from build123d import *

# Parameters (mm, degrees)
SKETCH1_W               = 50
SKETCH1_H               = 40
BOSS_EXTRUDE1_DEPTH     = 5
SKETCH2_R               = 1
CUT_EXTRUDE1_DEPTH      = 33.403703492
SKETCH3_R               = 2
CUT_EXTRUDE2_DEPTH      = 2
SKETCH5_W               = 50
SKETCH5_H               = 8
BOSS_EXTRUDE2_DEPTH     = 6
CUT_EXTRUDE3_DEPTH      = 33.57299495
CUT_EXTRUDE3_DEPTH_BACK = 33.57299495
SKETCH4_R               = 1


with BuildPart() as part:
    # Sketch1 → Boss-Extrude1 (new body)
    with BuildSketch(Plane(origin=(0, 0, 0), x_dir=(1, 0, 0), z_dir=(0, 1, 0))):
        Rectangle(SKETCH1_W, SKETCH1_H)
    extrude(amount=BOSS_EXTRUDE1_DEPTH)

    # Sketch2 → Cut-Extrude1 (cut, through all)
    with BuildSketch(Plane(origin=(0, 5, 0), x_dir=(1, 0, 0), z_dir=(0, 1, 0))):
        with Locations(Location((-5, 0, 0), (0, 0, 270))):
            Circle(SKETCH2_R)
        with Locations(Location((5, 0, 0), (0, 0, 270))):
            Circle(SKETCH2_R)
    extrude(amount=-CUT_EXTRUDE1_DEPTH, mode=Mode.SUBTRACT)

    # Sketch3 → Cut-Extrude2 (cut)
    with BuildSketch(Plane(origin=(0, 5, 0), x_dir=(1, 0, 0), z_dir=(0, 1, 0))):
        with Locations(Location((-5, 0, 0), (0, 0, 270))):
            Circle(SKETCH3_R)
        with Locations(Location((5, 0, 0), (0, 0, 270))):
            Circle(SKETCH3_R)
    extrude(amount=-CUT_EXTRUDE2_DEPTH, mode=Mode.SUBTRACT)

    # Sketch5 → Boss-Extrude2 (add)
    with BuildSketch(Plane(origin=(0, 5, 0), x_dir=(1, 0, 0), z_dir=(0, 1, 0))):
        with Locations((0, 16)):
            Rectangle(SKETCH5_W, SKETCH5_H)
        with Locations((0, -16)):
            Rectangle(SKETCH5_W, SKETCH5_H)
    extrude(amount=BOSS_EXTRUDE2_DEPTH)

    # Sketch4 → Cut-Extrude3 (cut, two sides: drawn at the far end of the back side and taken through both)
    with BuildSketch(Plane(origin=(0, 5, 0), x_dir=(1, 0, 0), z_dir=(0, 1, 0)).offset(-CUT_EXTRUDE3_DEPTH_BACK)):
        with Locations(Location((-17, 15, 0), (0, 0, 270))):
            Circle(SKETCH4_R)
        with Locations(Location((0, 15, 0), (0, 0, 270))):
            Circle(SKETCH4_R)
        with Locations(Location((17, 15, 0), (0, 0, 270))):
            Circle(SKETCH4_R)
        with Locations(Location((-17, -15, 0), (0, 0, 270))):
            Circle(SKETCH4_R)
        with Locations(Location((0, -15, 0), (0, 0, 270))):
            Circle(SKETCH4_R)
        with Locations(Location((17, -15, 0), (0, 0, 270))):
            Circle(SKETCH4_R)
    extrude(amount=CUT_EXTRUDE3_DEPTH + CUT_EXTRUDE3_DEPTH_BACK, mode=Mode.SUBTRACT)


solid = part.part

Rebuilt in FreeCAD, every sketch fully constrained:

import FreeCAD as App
import Part
import Sketcher


def add_polygon(sketch, points):
    """Adds a closed chain of lines whose ends are joined by coincident constraints."""
    first, n = sketch.GeometryCount, len(points)
    for a, b in zip(points, points[1:] + points[:1]):
        sketch.addGeometry(Part.LineSegment(App.Vector(*a, 0), App.Vector(*b, 0)), False)
    for i in range(n):
        sketch.addConstraint(Sketcher.Constraint("Coincident", first + i, 2, first + (i + 1) % n, 1))

doc = App.newDocument("Part")
body = doc.addObject("PartDesign::Body", "Body")

# Sketch on XZ plane
sketch1 = body.newObject("Sketcher::SketchObject", "Sketch")
sketch1.AttachmentSupport = (doc.getObject("XZ_Plane"), [""])
sketch1.MapMode = "FlatFace"
add_polygon(sketch1, [(-25, -20), (-25, 20), (25, 20), (25, -20)])  # lines 0-3
sketch1.addConstraint(Sketcher.Constraint("Vertical", 0))
sketch1.addConstraint(Sketcher.Constraint("Horizontal", 1))
sketch1.addConstraint(Sketcher.Constraint("Vertical", 2))
sketch1.addConstraint(Sketcher.Constraint("Horizontal", 3))
sketch1.addConstraint(Sketcher.Constraint("Symmetric", 0, 2, 2, 2, -1, 1))
sketch1.addConstraint(Sketcher.Constraint("DistanceX", 1, 1, 1, 2, 50.0))
sketch1.addConstraint(Sketcher.Constraint("DistanceY", 0, 1, 0, 2, 40.0))
pad1 = body.newObject("PartDesign::Pad", "Pad")
pad1.Profile = sketch1
pad1.Length = 5
pad1.Reversed = True

# Sketch on XZ plane
sketch2 = body.newObject("Sketcher::SketchObject", "Sketch001")
sketch2.AttachmentSupport = (doc.getObject("XZ_Plane"), [""])
sketch2.MapMode = "FlatFace"
sketch2.AttachmentOffset = App.Placement(App.Vector(0, 0, -5), App.Rotation())
sketch2.addGeometry(Part.Circle(App.Vector(-5, 0, 0), App.Vector(0, 0, 1), 1), False)
sketch2.addGeometry(Part.Circle(App.Vector(5, 0, 0), App.Vector(0, 0, 1), 1), False)
sketch2.addConstraint(Sketcher.Constraint("Equal", 0, 1))
sketch2.addConstraint(Sketcher.Constraint("Symmetric", 0, 3, 1, 3, -1, 1))
sketch2.addConstraint(Sketcher.Constraint("PointOnObject", 0, 3, -1))
sketch2.addConstraint(Sketcher.Constraint("Diameter", 0, 2.0))
sketch2.addConstraint(Sketcher.Constraint("DistanceX", 0, 3, -1, 1, 5.0))
pocket1 = body.newObject("PartDesign::Pocket", "Pocket")
pocket1.Profile = sketch2
pocket1.Type = "ThroughAll"
pocket1.Reversed = True

# Sketch on XZ plane
sketch3 = body.newObject("Sketcher::SketchObject", "Sketch002")
sketch3.AttachmentSupport = (doc.getObject("XZ_Plane"), [""])
sketch3.MapMode = "FlatFace"
sketch3.AttachmentOffset = App.Placement(App.Vector(0, 0, -5), App.Rotation())
sketch3.addGeometry(Part.Circle(App.Vector(-5, 0, 0), App.Vector(0, 0, 1), 2), False)
sketch3.addGeometry(Part.Circle(App.Vector(5, 0, 0), App.Vector(0, 0, 1), 2), False)
sketch3.addConstraint(Sketcher.Constraint("Equal", 0, 1))
sketch3.addConstraint(Sketcher.Constraint("Symmetric", 0, 3, 1, 3, -1, 1))
sketch3.addConstraint(Sketcher.Constraint("PointOnObject", 0, 3, -1))
sketch3.addConstraint(Sketcher.Constraint("Diameter", 0, 4.0))
sketch3.addConstraint(Sketcher.Constraint("DistanceX", 0, 3, -1, 1, 5.0))
pocket2 = body.newObject("PartDesign::Pocket", "Pocket001")
pocket2.Profile = sketch3
pocket2.Length = 2
pocket2.Reversed = True

# Sketch on XZ plane
sketch4 = body.newObject("Sketcher::SketchObject", "Sketch003")
sketch4.AttachmentSupport = (doc.getObject("XZ_Plane"), [""])
sketch4.MapMode = "FlatFace"
sketch4.AttachmentOffset = App.Placement(App.Vector(0, 0, -5), App.Rotation())
add_polygon(sketch4, [(-25, -20), (-25, -12), (25, -12), (25, -20)])  # lines 0-3
add_polygon(sketch4, [(-25, 12), (-25, 20), (25, 20), (25, 12)])  # lines 4-7
sketch4.addConstraint(Sketcher.Constraint("Vertical", 0))
sketch4.addConstraint(Sketcher.Constraint("Horizontal", 1))
sketch4.addConstraint(Sketcher.Constraint("Vertical", 2))
sketch4.addConstraint(Sketcher.Constraint("Horizontal", 3))
sketch4.addConstraint(Sketcher.Constraint("Vertical", 4))
sketch4.addConstraint(Sketcher.Constraint("Horizontal", 5))
sketch4.addConstraint(Sketcher.Constraint("Vertical", 6))
sketch4.addConstraint(Sketcher.Constraint("Horizontal", 7))
sketch4.addConstraint(Sketcher.Constraint("Symmetric", 2, 2, 4, 2, -1, 1))
sketch4.addConstraint(Sketcher.Constraint("Symmetric", 0, 2, 6, 2, -1, 1))
sketch4.addConstraint(Sketcher.Constraint("Vertical", 3, 2, 4, 2))
sketch4.addConstraint(Sketcher.Constraint("DistanceX", 1, 1, 1, 2, 50.0))
sketch4.addConstraint(Sketcher.Constraint("DistanceY", 0, 1, 0, 2, 8.0))
sketch4.addConstraint(Sketcher.Constraint("DistanceY", 0, 2, -1, 1, 12.0))
pad2 = body.newObject("PartDesign::Pad", "Pad001")
pad2.Profile = sketch4
pad2.Length = 6
pad2.Reversed = True

# Sketch on XZ plane
sketch5 = body.newObject("Sketcher::SketchObject", "Sketch004")
sketch5.AttachmentSupport = (doc.getObject("XZ_Plane"), [""])
sketch5.MapMode = "FlatFace"
sketch5.AttachmentOffset = App.Placement(App.Vector(0, 0, -5), App.Rotation())
sketch5.addGeometry(Part.Circle(App.Vector(-17, -15, 0), App.Vector(0, 0, 1), 1), False)
sketch5.addGeometry(Part.Circle(App.Vector(0, -15, 0), App.Vector(0, 0, 1), 1), False)
sketch5.addGeometry(Part.Circle(App.Vector(17, -15, 0), App.Vector(0, 0, 1), 1), False)
sketch5.addGeometry(Part.Circle(App.Vector(-17, 15, 0), App.Vector(0, 0, 1), 1), False)
sketch5.addGeometry(Part.Circle(App.Vector(0, 15, 0), App.Vector(0, 0, 1), 1), False)
sketch5.addGeometry(Part.Circle(App.Vector(17, 15, 0), App.Vector(0, 0, 1), 1), False)
sketch5.addConstraint(Sketcher.Constraint("Equal", 0, 1))
sketch5.addConstraint(Sketcher.Constraint("Equal", 1, 2))
sketch5.addConstraint(Sketcher.Constraint("Equal", 2, 3))
sketch5.addConstraint(Sketcher.Constraint("Equal", 3, 4))
sketch5.addConstraint(Sketcher.Constraint("Equal", 4, 5))
sketch5.addConstraint(Sketcher.Constraint("Symmetric", 2, 3, 3, 3, -1, 1))
sketch5.addConstraint(Sketcher.Constraint("Symmetric", 1, 3, 4, 3, -1, 1))
sketch5.addConstraint(Sketcher.Constraint("Symmetric", 0, 3, 5, 3, -1, 1))
sketch5.addConstraint(Sketcher.Constraint("Symmetric", 0, 3, 2, 3, -2))
sketch5.addConstraint(Sketcher.Constraint("PointOnObject", 1, 3, -2))
sketch5.addConstraint(Sketcher.Constraint("Horizontal", 0, 3, 1, 3))
sketch5.addConstraint(Sketcher.Constraint("Diameter", 0, 2.0))
sketch5.addConstraint(Sketcher.Constraint("DistanceX", 0, 3, -1, 1, 17.0))
sketch5.addConstraint(Sketcher.Constraint("DistanceY", 0, 3, -1, 1, 15.0))
pocket3 = body.newObject("PartDesign::Pocket", "Pocket002")
pocket3.Profile = sketch5
pocket3.Type = "ThroughAll"
pocket3.Midplane = True

doc.recompute()
